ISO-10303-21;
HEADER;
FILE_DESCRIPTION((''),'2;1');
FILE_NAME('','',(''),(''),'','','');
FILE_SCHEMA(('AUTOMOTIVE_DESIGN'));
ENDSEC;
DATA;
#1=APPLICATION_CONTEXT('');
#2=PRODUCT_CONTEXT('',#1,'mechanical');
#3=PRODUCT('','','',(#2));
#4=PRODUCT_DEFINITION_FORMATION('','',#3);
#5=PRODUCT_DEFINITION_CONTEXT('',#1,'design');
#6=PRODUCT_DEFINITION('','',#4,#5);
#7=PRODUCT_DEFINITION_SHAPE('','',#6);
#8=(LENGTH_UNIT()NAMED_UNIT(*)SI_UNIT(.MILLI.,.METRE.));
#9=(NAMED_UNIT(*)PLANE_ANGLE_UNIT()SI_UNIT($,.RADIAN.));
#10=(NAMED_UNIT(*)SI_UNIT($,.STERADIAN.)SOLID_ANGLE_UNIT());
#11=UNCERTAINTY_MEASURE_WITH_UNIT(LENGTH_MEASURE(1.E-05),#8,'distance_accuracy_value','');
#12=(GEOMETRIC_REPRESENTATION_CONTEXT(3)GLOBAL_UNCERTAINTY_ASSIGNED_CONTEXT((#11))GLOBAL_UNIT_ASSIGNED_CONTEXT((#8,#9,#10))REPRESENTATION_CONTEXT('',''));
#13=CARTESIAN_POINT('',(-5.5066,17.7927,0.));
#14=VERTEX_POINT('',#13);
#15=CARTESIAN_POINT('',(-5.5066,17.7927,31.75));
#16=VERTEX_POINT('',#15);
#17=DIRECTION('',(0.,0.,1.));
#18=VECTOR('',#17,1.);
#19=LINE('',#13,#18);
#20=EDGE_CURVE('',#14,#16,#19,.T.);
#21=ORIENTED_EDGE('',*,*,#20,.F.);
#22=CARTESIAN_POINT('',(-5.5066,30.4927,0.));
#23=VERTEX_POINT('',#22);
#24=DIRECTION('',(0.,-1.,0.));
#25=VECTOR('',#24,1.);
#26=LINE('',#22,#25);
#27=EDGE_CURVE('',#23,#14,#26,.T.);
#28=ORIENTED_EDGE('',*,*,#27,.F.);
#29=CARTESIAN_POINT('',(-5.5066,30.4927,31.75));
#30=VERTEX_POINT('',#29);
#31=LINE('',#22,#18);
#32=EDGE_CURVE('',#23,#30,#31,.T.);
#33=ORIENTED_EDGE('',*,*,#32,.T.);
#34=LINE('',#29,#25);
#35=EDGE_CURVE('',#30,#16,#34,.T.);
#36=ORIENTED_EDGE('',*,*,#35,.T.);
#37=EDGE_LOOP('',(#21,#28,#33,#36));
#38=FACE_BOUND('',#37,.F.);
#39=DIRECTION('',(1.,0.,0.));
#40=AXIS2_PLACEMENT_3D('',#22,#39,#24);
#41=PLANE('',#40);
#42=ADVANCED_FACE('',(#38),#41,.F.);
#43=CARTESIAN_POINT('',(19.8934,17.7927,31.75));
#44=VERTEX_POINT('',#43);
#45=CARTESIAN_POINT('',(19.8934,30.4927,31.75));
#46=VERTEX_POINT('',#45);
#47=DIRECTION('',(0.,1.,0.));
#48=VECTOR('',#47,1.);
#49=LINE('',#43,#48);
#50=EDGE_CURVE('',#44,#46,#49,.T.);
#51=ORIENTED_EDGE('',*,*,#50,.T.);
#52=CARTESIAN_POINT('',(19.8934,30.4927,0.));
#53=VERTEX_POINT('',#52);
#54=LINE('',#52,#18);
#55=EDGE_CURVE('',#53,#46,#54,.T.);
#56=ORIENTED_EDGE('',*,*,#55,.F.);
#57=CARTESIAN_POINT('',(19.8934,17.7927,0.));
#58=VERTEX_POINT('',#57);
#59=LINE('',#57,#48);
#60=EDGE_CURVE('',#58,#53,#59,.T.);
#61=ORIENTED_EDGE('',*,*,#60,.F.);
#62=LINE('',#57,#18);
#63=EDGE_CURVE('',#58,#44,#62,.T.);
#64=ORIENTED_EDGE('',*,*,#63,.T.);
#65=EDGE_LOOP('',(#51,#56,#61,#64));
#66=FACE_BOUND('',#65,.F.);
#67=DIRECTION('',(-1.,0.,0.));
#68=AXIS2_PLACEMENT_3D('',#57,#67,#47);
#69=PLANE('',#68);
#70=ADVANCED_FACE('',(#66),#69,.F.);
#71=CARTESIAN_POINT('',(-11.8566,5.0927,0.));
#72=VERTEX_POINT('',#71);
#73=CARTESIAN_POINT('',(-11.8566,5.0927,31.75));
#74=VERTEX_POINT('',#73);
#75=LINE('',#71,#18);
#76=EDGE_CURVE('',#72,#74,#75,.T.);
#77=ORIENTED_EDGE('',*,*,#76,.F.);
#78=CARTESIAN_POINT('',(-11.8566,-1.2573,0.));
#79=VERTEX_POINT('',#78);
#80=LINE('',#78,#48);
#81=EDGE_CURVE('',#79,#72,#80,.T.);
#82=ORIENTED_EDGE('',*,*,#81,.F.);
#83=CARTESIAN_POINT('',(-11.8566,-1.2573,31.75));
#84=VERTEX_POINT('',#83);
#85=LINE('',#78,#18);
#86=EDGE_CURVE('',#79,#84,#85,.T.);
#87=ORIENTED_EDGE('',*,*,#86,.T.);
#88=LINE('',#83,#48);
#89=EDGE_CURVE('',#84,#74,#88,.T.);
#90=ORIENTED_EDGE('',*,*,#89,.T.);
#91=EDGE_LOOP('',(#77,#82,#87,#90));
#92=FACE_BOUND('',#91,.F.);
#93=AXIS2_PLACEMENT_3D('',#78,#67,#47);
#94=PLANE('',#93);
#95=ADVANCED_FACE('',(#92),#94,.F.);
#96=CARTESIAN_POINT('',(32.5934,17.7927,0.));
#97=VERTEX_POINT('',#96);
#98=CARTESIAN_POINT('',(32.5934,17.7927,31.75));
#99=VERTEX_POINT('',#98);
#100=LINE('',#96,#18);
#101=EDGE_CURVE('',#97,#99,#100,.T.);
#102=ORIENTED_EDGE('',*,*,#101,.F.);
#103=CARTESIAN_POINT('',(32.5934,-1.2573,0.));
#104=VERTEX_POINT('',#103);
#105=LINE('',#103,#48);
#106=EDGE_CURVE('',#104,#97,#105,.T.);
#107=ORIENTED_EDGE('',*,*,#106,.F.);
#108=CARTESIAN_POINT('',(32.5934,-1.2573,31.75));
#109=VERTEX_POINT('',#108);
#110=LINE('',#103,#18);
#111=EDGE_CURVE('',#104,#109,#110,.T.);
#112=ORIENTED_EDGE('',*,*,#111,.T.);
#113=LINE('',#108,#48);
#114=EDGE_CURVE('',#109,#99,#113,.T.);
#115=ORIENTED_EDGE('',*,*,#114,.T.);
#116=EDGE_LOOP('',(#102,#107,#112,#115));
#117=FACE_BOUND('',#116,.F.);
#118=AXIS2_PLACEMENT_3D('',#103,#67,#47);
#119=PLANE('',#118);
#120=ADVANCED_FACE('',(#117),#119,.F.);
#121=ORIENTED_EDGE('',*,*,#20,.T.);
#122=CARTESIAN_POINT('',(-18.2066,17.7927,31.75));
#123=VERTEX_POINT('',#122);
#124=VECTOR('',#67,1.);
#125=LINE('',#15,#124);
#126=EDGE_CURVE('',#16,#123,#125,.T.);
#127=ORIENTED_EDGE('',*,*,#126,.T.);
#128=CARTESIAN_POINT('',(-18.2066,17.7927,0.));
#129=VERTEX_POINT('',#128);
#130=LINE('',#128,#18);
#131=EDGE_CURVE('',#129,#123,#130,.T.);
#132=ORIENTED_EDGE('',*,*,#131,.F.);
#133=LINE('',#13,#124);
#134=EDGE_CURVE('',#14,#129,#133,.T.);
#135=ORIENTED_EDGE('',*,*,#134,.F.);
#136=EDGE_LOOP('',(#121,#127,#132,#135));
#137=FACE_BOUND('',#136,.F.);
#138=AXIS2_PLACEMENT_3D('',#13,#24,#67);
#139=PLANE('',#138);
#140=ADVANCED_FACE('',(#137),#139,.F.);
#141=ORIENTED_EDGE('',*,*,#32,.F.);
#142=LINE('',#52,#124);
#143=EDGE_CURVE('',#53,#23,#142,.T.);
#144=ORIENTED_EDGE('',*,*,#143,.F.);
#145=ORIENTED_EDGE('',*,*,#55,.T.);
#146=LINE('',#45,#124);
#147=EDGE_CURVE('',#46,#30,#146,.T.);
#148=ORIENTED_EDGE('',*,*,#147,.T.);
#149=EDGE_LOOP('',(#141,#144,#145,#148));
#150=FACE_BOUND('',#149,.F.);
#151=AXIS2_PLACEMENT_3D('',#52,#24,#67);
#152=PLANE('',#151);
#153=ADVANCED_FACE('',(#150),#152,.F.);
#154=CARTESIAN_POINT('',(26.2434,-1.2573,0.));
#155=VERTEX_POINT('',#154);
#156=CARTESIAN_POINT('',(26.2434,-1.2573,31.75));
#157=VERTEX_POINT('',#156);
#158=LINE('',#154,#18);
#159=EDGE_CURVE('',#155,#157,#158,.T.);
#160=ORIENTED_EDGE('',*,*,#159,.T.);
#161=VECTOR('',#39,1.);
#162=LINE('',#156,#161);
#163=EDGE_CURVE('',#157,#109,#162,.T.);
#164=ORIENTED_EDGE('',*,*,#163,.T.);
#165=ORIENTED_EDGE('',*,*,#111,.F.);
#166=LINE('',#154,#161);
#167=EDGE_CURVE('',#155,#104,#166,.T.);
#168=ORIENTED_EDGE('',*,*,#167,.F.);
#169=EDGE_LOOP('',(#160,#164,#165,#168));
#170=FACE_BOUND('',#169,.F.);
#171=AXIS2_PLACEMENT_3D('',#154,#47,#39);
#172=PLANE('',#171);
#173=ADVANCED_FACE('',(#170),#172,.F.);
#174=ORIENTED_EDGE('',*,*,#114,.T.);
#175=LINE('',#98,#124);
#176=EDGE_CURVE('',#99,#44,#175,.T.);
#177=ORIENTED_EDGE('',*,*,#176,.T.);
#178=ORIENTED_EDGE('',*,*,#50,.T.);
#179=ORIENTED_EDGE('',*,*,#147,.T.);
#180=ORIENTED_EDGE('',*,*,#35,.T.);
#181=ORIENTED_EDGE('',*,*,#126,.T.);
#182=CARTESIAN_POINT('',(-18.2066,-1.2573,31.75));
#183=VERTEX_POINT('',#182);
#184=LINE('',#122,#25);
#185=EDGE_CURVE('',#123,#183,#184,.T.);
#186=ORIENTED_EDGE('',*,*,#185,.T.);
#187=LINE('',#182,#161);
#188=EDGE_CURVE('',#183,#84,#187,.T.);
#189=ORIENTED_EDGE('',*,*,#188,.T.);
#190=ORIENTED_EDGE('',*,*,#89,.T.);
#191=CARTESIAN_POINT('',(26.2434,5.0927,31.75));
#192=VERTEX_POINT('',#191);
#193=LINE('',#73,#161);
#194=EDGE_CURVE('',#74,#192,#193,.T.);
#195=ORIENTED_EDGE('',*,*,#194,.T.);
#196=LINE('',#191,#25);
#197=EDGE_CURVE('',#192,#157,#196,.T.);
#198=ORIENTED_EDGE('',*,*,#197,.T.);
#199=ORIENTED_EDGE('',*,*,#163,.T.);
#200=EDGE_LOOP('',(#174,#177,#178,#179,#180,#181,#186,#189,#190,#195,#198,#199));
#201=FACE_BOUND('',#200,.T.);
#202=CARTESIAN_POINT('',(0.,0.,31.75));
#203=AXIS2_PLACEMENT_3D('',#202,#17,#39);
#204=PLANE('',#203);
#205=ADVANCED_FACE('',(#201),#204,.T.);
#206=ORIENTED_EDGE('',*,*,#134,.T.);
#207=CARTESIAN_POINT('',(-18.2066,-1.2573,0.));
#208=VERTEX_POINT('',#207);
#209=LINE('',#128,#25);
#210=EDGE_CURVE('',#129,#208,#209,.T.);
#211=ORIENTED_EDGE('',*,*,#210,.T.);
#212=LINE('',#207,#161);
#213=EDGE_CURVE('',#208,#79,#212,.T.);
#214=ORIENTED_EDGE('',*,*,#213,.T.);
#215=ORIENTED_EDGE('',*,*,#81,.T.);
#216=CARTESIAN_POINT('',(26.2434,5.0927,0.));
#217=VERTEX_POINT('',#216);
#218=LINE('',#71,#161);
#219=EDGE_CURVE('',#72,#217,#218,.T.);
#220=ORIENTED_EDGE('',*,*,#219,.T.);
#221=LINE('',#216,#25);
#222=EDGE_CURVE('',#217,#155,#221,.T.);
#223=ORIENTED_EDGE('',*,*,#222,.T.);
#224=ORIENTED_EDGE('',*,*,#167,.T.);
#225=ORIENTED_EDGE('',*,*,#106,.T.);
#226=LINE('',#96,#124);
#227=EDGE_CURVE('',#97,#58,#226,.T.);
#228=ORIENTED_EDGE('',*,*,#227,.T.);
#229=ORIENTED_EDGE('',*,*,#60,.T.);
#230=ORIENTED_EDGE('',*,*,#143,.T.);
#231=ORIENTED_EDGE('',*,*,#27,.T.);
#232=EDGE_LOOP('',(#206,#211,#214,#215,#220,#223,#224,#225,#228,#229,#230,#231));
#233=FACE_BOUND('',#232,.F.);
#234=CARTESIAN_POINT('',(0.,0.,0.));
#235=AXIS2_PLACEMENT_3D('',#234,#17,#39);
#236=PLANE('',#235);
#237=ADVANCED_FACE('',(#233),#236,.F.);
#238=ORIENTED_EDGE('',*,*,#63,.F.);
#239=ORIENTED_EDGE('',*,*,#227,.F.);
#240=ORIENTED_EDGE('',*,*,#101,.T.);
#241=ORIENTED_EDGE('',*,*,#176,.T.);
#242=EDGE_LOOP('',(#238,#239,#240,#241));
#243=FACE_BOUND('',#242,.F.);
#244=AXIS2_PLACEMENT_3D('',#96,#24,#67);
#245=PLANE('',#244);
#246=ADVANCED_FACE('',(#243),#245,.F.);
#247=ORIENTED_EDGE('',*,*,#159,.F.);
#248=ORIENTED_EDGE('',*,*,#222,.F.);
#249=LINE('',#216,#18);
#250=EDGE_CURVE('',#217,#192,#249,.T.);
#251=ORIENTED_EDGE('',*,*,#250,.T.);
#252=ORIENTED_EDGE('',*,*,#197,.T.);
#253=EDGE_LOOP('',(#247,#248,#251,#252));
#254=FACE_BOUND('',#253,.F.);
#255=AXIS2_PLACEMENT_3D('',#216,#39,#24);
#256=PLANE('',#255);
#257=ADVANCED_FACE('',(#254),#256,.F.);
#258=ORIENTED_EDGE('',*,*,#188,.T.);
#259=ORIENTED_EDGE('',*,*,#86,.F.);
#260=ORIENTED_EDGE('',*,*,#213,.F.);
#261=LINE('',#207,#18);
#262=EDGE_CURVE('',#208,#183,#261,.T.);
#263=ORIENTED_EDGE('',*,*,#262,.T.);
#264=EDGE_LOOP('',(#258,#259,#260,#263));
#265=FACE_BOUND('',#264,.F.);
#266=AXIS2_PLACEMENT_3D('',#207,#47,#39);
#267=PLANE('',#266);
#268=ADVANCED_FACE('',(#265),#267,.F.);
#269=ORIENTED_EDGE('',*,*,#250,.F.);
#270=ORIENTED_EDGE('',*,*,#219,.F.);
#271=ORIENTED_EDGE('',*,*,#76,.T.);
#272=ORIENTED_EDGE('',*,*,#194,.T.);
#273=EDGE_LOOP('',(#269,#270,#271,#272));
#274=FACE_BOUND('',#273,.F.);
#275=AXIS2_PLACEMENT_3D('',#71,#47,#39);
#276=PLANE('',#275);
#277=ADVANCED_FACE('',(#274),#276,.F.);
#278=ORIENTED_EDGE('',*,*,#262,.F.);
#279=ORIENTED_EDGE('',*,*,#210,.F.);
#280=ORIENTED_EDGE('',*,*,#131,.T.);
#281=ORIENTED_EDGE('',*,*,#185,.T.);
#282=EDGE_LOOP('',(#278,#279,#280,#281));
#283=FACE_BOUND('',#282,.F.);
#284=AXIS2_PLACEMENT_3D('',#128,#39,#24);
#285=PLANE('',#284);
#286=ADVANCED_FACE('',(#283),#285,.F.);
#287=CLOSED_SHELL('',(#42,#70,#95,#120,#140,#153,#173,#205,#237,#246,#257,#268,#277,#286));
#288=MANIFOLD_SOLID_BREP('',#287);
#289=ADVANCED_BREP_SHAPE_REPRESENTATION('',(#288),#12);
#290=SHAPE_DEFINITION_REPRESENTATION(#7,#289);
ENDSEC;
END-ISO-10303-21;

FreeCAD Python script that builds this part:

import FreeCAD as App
import Part
import Sketcher
Q = App.Units.Quantity


def add_polygon(sketch, points):
    """Adds a closed chain of lines whose ends are joined by coincident constraints."""
    first, n = sketch.GeometryCount, len(points)
    for a, b in zip(points, points[1:] + points[:1]):
        sketch.addGeometry(Part.LineSegment(App.Vector(*a, 0), App.Vector(*b, 0)), False)
    for i in range(n):
        sketch.addConstraint(Sketcher.Constraint("Coincident", first + i, 2, first + (i + 1) % n, 1))

doc = App.newDocument("Part")
body = doc.addObject("PartDesign::Body", "Body")

sketch1 = doc.addObject("Sketcher::SketchObject", "Sketch")
body.addObject(sketch1)
sketch1.AttachmentSupport = (doc.XY_Plane, [""])
sketch1.MapMode = "FlatFace"
add_polygon(sketch1, [(-18, 18), (-18, -1), (-12, -1), (-12, 5), (26, 5), (26, -1), (33, -1), (33, 18), (20, 18), (20, 30), (-6, 30), (-6, 18)])
sketch1.addConstraint(Sketcher.Constraint("Vertical", 0))
sketch1.addConstraint(Sketcher.Constraint("Horizontal", 1))
sketch1.addConstraint(Sketcher.Constraint("Vertical", 2))
sketch1.addConstraint(Sketcher.Constraint("Horizontal", 3))
sketch1.addConstraint(Sketcher.Constraint("Vertical", 4))
sketch1.addConstraint(Sketcher.Constraint("Horizontal", 5))
sketch1.addConstraint(Sketcher.Constraint("Vertical", 6))
sketch1.addConstraint(Sketcher.Constraint("Horizontal", 7))
sketch1.addConstraint(Sketcher.Constraint("Vertical", 8))
sketch1.addConstraint(Sketcher.Constraint("Horizontal", 9))
sketch1.addConstraint(Sketcher.Constraint("Vertical", 10))
sketch1.addConstraint(Sketcher.Constraint("Horizontal", 11))
sketch1.addConstraint(Sketcher.Constraint("Horizontal", 1, 2, 4, 2))
sketch1.addConstraint(Sketcher.Constraint("Horizontal", 7, 2, 10, 2))
sketch1.addConstraint(Sketcher.Constraint("Equal", 1, 5))
sketch1.addConstraint(Sketcher.Constraint("Equal", 7, 11))
sketch1.addConstraint(Sketcher.Constraint("Equal", 5, 2))
sketch1.addConstraint(Sketcher.Constraint("Equal", 11, 8))
sketch1.addConstraint(Sketcher.Constraint("DistanceX", 9, 2, 9, 1, Q("1 in")))
sketch1.addConstraint(Sketcher.Constraint("DistanceX", 3, 1, 3, 2, Q("1.5 in")))
sketch1.addConstraint(Sketcher.Constraint("DistanceX", 7, 2, 7, 1, Q("0.5 in")))
sketch1.addConstraint(Sketcher.Constraint("DistanceY", 3, 2, 8, 2, Q("1 in")))
sketch1.addConstraint(Sketcher.Constraint("DistanceX", 0, 2, -1, 1, Q("0.7168 in")))
sketch1.addConstraint(Sketcher.Constraint("DistanceY", 0, 2, -1, 1, Q("0.0495 in")))
pad1 = doc.addObject("PartDesign::Pad", "Pad")
body.addObject(pad1)
pad1.Profile = sketch1
pad1.Length = Q("1.25 in")

doc.recompute()
